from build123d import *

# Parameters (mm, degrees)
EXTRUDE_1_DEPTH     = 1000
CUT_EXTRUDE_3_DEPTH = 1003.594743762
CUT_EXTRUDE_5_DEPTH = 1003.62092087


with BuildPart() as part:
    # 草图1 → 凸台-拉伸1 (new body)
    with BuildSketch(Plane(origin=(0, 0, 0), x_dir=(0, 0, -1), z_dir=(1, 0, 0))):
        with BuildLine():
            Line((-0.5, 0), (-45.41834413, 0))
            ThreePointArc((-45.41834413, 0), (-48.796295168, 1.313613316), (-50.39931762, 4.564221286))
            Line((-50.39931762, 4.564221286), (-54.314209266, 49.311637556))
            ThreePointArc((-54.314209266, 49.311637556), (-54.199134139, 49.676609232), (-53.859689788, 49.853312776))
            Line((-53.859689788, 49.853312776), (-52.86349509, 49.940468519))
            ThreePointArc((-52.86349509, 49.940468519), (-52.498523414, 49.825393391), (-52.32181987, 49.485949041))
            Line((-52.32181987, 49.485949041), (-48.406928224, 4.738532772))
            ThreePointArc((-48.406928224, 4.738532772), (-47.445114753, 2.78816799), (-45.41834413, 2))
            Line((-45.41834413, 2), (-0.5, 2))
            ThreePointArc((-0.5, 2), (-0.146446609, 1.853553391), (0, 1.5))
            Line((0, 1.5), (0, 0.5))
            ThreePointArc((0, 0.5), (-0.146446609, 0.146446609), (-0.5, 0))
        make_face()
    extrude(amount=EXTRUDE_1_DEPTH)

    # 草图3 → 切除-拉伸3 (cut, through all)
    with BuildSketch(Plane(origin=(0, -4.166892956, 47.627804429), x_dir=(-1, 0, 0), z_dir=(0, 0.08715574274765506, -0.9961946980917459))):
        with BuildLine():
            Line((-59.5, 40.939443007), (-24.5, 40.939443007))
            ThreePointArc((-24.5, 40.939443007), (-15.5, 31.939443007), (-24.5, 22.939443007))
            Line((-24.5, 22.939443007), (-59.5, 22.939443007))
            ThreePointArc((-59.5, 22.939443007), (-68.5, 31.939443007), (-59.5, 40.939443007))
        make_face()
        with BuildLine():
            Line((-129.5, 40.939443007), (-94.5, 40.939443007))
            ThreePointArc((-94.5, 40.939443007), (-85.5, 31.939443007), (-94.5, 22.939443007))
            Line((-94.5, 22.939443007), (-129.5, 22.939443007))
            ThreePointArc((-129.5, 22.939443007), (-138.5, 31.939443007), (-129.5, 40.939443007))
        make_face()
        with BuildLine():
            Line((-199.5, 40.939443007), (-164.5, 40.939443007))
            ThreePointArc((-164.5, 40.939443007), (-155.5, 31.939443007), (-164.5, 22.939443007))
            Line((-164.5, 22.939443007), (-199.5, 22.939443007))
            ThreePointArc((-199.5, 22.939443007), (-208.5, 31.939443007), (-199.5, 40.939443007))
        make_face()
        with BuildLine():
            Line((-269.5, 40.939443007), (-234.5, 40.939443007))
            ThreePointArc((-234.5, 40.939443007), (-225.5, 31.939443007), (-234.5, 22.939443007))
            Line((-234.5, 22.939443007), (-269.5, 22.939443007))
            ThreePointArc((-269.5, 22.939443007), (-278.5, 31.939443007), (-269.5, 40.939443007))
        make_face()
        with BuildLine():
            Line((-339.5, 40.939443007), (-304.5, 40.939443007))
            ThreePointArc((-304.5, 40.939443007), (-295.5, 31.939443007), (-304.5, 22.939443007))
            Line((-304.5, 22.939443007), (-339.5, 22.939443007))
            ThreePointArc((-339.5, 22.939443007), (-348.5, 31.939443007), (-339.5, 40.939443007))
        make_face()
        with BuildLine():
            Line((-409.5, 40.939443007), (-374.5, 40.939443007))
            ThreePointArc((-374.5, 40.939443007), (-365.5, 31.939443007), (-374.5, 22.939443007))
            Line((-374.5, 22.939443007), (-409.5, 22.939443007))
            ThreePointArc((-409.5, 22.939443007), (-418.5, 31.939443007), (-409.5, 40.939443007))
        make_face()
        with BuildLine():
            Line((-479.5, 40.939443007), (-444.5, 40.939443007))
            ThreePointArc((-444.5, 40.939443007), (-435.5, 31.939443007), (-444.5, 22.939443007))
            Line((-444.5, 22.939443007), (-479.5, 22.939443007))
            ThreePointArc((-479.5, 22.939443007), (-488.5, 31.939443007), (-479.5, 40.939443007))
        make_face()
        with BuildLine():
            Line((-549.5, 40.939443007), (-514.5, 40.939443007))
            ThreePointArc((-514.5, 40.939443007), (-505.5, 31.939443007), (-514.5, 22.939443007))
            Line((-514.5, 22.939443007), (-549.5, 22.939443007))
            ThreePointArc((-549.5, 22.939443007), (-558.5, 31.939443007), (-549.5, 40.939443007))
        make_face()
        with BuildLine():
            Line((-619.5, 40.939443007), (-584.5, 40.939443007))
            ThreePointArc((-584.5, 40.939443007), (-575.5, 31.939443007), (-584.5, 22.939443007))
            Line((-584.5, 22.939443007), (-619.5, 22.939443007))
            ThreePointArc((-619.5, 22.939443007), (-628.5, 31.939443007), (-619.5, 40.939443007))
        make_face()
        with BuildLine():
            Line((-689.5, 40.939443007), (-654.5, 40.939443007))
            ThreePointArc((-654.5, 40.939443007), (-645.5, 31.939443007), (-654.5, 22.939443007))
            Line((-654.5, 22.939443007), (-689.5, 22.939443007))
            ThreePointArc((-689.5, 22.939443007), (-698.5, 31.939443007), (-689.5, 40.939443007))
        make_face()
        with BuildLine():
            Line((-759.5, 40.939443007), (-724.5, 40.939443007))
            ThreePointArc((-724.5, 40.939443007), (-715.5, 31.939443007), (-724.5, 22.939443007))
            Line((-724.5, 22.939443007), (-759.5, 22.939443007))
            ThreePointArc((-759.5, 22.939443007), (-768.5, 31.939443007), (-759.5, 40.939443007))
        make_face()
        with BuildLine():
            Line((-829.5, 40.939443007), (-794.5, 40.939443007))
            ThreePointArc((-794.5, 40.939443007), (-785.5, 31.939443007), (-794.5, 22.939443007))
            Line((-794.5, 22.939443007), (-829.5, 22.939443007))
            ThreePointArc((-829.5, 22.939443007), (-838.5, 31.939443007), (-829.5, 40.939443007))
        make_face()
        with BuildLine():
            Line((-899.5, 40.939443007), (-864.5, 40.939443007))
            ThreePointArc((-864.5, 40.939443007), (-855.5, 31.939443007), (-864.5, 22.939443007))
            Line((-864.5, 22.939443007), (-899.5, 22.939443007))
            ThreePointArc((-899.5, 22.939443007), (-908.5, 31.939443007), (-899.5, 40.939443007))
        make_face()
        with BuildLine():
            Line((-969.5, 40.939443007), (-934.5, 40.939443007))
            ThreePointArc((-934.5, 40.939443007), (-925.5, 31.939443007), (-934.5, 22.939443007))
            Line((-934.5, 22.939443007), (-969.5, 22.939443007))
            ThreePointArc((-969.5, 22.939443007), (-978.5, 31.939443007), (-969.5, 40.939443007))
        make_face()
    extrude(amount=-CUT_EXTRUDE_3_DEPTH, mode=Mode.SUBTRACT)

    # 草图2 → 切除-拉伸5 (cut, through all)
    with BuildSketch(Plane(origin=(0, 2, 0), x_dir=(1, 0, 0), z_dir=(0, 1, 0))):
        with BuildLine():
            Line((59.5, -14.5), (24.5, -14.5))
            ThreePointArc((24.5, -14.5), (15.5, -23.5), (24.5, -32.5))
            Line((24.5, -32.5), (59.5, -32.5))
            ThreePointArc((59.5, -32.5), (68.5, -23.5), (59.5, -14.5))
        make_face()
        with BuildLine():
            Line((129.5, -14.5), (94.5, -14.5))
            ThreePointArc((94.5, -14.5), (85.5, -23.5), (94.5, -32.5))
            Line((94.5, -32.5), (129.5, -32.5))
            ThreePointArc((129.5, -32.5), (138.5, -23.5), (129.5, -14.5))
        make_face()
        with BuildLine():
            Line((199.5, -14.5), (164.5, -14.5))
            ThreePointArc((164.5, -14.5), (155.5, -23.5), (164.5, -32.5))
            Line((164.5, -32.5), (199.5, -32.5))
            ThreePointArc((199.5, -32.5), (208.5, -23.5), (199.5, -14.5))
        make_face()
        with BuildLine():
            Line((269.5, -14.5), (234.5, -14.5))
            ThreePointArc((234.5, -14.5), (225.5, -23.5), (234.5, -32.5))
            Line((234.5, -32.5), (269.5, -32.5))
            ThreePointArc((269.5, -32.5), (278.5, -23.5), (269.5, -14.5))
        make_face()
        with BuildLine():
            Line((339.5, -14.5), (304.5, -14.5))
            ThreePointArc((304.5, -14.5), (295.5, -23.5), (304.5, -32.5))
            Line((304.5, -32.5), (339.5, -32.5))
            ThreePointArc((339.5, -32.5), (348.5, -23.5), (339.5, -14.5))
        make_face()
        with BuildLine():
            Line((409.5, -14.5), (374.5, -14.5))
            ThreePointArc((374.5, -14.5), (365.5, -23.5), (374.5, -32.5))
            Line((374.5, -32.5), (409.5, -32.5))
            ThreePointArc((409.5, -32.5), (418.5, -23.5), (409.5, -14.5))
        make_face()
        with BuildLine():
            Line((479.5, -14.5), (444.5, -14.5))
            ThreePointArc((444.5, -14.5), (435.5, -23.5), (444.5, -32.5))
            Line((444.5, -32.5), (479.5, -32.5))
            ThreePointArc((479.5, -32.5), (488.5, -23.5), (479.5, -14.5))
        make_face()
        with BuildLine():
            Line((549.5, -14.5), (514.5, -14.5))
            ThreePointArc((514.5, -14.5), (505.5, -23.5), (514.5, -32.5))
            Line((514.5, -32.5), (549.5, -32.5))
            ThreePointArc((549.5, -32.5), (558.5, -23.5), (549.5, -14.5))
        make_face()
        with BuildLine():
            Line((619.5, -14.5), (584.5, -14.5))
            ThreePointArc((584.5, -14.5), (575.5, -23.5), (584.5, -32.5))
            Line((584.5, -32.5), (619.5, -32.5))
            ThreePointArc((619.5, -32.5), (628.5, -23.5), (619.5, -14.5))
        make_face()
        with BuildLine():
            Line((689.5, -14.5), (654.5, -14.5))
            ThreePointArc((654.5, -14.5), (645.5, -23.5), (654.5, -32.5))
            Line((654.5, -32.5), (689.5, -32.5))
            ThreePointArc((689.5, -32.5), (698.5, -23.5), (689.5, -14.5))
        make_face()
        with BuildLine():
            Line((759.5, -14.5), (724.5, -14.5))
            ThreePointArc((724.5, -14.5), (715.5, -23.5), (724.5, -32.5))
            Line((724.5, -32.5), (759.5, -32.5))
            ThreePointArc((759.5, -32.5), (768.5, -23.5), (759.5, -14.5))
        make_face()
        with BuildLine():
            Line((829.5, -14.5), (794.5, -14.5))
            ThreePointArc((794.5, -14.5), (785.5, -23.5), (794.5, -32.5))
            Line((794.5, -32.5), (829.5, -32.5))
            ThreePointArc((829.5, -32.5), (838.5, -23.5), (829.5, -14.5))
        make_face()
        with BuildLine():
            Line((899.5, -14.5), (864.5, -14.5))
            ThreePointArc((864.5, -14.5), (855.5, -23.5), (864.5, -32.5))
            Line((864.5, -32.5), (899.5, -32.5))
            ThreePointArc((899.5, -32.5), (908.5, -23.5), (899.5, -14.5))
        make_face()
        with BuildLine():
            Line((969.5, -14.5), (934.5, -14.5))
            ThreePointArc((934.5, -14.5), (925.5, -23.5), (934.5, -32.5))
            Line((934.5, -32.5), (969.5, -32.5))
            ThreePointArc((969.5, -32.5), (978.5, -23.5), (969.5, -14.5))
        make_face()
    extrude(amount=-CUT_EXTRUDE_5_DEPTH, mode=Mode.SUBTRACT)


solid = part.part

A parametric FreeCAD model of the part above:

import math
import FreeCAD as App
import Part
import Sketcher

V = App.Vector
Q = App.Units.Quantity

doc = App.newDocument("Part")
body = doc.addObject("PartDesign::Body", "Body")

sketch1 = body.newObject("Sketcher::SketchObject", "Sketch")
sketch1.AttachmentSupport = (doc.getObject("YZ_Plane"), [""])
sketch1.MapMode = "FlatFace"
sketch1.addGeometry(Part.LineSegment(V(0, 45.42, 0), V(0, 0.5, 0)), False)
sketch1.addGeometry(Part.ArcOfCircle(Part.Circle(V(0.5, 0.5, 0), V(0, 0, 1), 0.5), math.radians(180), math.radians(270)), False)
sketch1.addGeometry(Part.LineSegment(V(0.5, 0, 0), V(1.5, 0, 0)), False)
sketch1.addGeometry(Part.ArcOfCircle(Part.Circle(V(1.5, 0.5, 0), V(0, 0, 1), 0.5), math.radians(-90), math.radians(0)), False)
sketch1.addGeometry(Part.LineSegment(V(2, 0.5, 0), V(2, 45.42, 0)), False)
sketch1.addGeometry(Part.ArcOfCircle(Part.Circle(V(5, 45.42, 0), V(0, 0, 1), 3), math.radians(95), math.radians(180)), False)
sketch1.addGeometry(Part.LineSegment(V(4.74, 48.41, 0), V(49.49, 52.32, 0)), False)
sketch1.addGeometry(Part.ArcOfCircle(Part.Circle(V(49.44, 52.82, 0), V(0, 0, 1), 0.5), math.radians(-85), math.radians(5)), False)
sketch1.addGeometry(Part.LineSegment(V(49.94, 52.86, 0), V(49.85, 53.86, 0)), False)
sketch1.addGeometry(Part.ArcOfCircle(Part.Circle(V(49.36, 53.82, 0), V(0, 0, 1), 0.5), math.radians(5), math.radians(95)), False)
sketch1.addGeometry(Part.LineSegment(V(49.31, 54.31, 0), V(4.56, 50.4, 0)), False)
sketch1.addGeometry(Part.ArcOfCircle(Part.Circle(V(5, 45.42, 0), V(0, 0, 1), 5), math.radians(95), math.radians(180)), False)
sketch1.addConstraint(Sketcher.Constraint("Tangent", 0, 2, 1, 1))
sketch1.addConstraint(Sketcher.Constraint("Tangent", 1, 2, 2, 1))
sketch1.addConstraint(Sketcher.Constraint("Tangent", 2, 2, 3, 1))
sketch1.addConstraint(Sketcher.Constraint("Tangent", 3, 2, 4, 1))
sketch1.addConstraint(Sketcher.Constraint("Tangent", 4, 2, 5, 2))
sketch1.addConstraint(Sketcher.Constraint("Tangent", 5, 1, 6, 1))
sketch1.addConstraint(Sketcher.Constraint("Tangent", 6, 2, 7, 1))
sketch1.addConstraint(Sketcher.Constraint("Tangent", 7, 2, 8, 1))
sketch1.addConstraint(Sketcher.Constraint("Tangent", 8, 2, 9, 1))
sketch1.addConstraint(Sketcher.Constraint("Tangent", 9, 2, 10, 1))
sketch1.addConstraint(Sketcher.Constraint("Tangent", 10, 2, 11, 1))
sketch1.addConstraint(Sketcher.Constraint("Tangent", 11, 2, 0, 1))
sketch1.addConstraint(Sketcher.Constraint("Vertical", 0))
sketch1.addConstraint(Sketcher.Constraint("Horizontal", 2))
sketch1.addConstraint(Sketcher.Constraint("Vertical", 4))
sketch1.addConstraint(Sketcher.Constraint("Coincident", 11, 3, 5, 3))
sketch1.addConstraint(Sketcher.Constraint("Equal", 1, 3))
sketch1.addConstraint(Sketcher.Constraint("Equal", 3, 7))
sketch1.addConstraint(Sketcher.Constraint("Equal", 7, 9))
sketch1.addConstraint(Sketcher.Constraint("PointOnObject", 0, 2, -2))
sketch1.addConstraint(Sketcher.Constraint("PointOnObject", 1, 2, -1))
sketch1.addConstraint(Sketcher.Constraint("Perpendicular", 6, 8))
sketch1.addConstraint(Sketcher.Constraint("Perpendicular", 8, 10))
sketch1.addConstraint(Sketcher.Constraint("Radius", 5, 3.0))
sketch1.addConstraint(Sketcher.Constraint("Radius", 11, 5.0))
sketch1.addConstraint(Sketcher.Constraint("Radius", 1, 0.5))
sketch1.addConstraint(Sketcher.Constraint("Angle", 6, Q("5 deg")))
sketch1.addConstraint(Sketcher.Constraint("DistanceY", 0, 2, 0, 1, 44.918344))
sketch1.addConstraint(Sketcher.Constraint("DistanceX", -1, 1, 7, 3, 49.442371))
pad1 = body.newObject("PartDesign::Pad", "Pad")
pad1.Profile = sketch1
pad1.Length = 1000

sketch2 = body.newObject("Sketcher::SketchObject", "Sketch001")
sketch2.Placement = App.Placement(V(0, -4.166893, 47.627804), App.Rotation(V(-1, 0, 0), V(0, 0.996194698, 0.087155743), V(0, 0.087155743, -0.996194698), "ZXY"))
sketch2.addGeometry(Part.LineSegment(V(-24, 41, 0), V(-60, 41, 0)), False)
sketch2.addGeometry(Part.ArcOfCircle(Part.Circle(V(-60, 32, 0), V(0, 0, 1), 9), math.radians(90), math.radians(270)), False)
sketch2.addGeometry(Part.LineSegment(V(-60, 23, 0), V(-24, 23, 0)), False)
sketch2.addGeometry(Part.ArcOfCircle(Part.Circle(V(-24, 32, 0), V(0, 0, 1), 9), math.radians(-90), math.radians(90)), False)
sketch2.addGeometry(Part.LineSegment(V(-94, 41, 0), V(-130, 41, 0)), False)
sketch2.addGeometry(Part.ArcOfCircle(Part.Circle(V(-130, 32, 0), V(0, 0, 1), 9), math.radians(90), math.radians(270)), False)
sketch2.addGeometry(Part.LineSegment(V(-130, 23, 0), V(-94, 23, 0)), False)
sketch2.addGeometry(Part.ArcOfCircle(Part.Circle(V(-94, 32, 0), V(0, 0, 1), 9), math.radians(-90), math.radians(90)), False)
sketch2.addGeometry(Part.LineSegment(V(-164, 41, 0), V(-200, 41, 0)), False)
sketch2.addGeometry(Part.ArcOfCircle(Part.Circle(V(-200, 32, 0), V(0, 0, 1), 9), math.radians(90), math.radians(270)), False)
sketch2.addGeometry(Part.LineSegment(V(-200, 23, 0), V(-164, 23, 0)), False)
sketch2.addGeometry(Part.ArcOfCircle(Part.Circle(V(-164, 32, 0), V(0, 0, 1), 9), math.radians(-90), math.radians(90)), False)
sketch2.addGeometry(Part.LineSegment(V(-234, 41, 0), V(-270, 41, 0)), False)
sketch2.addGeometry(Part.ArcOfCircle(Part.Circle(V(-270, 32, 0), V(0, 0, 1), 9), math.radians(90), math.radians(270)), False)
sketch2.addGeometry(Part.LineSegment(V(-270, 23, 0), V(-234, 23, 0)), False)
sketch2.addGeometry(Part.ArcOfCircle(Part.Circle(V(-234, 32, 0), V(0, 0, 1), 9), math.radians(-90), math.radians(90)), False)
sketch2.addGeometry(Part.LineSegment(V(-304, 41, 0), V(-340, 41, 0)), False)
sketch2.addGeometry(Part.ArcOfCircle(Part.Circle(V(-340, 32, 0), V(0, 0, 1), 9), math.radians(90), math.radians(270)), False)
sketch2.addGeometry(Part.LineSegment(V(-340, 23, 0), V(-304, 23, 0)), False)
sketch2.addGeometry(Part.ArcOfCircle(Part.Circle(V(-304, 32, 0), V(0, 0, 1), 9), math.radians(-90), math.radians(90)), False)
sketch2.addGeometry(Part.LineSegment(V(-374, 41, 0), V(-410, 41, 0)), False)
sketch2.addGeometry(Part.ArcOfCircle(Part.Circle(V(-410, 32, 0), V(0, 0, 1), 9), math.radians(90), math.radians(270)), False)
sketch2.addGeometry(Part.LineSegment(V(-410, 23, 0), V(-374, 23, 0)), False)
sketch2.addGeometry(Part.ArcOfCircle(Part.Circle(V(-374, 32, 0), V(0, 0, 1), 9), math.radians(-90), math.radians(90)), False)
sketch2.addGeometry(Part.LineSegment(V(-444, 41, 0), V(-480, 41, 0)), False)
sketch2.addGeometry(Part.ArcOfCircle(Part.Circle(V(-480, 32, 0), V(0, 0, 1), 9), math.radians(90), math.radians(270)), False)
sketch2.addGeometry(Part.LineSegment(V(-480, 23, 0), V(-444, 23, 0)), False)
sketch2.addGeometry(Part.ArcOfCircle(Part.Circle(V(-444, 32, 0), V(0, 0, 1), 9), math.radians(-90), math.radians(90)), False)
sketch2.addGeometry(Part.LineSegment(V(-514, 41, 0), V(-550, 41, 0)), False)
sketch2.addGeometry(Part.ArcOfCircle(Part.Circle(V(-550, 32, 0), V(0, 0, 1), 9), math.radians(90), math.radians(270)), False)
sketch2.addGeometry(Part.LineSegment(V(-550, 23, 0), V(-514, 23, 0)), False)
sketch2.addGeometry(Part.ArcOfCircle(Part.Circle(V(-514, 32, 0), V(0, 0, 1), 9), math.radians(-90), math.radians(90)), False)
sketch2.addGeometry(Part.LineSegment(V(-584, 41, 0), V(-620, 41, 0)), False)
sketch2.addGeometry(Part.ArcOfCircle(Part.Circle(V(-620, 32, 0), V(0, 0, 1), 9), math.radians(90), math.radians(270)), False)
sketch2.addGeometry(Part.LineSegment(V(-620, 23, 0), V(-584, 23, 0)), False)
sketch2.addGeometry(Part.ArcOfCircle(Part.Circle(V(-584, 32, 0), V(0, 0, 1), 9), math.radians(-90), math.radians(90)), False)
sketch2.addGeometry(Part.LineSegment(V(-654, 41, 0), V(-690, 41, 0)), False)
sketch2.addGeometry(Part.ArcOfCircle(Part.Circle(V(-690, 32, 0), V(0, 0, 1), 9), math.radians(90), math.radians(270)), False)
sketch2.addGeometry(Part.LineSegment(V(-690, 23, 0), V(-654, 23, 0)), False)
sketch2.addGeometry(Part.ArcOfCircle(Part.Circle(V(-654, 32, 0), V(0, 0, 1), 9), math.radians(-90), math.radians(90)), False)
sketch2.addGeometry(Part.LineSegment(V(-724, 41, 0), V(-760, 41, 0)), False)
sketch2.addGeometry(Part.ArcOfCircle(Part.Circle(V(-760, 32, 0), V(0, 0, 1), 9), math.radians(90), math.radians(270)), False)
sketch2.addGeometry(Part.LineSegment(V(-760, 23, 0), V(-724, 23, 0)), False)
sketch2.addGeometry(Part.ArcOfCircle(Part.Circle(V(-724, 32, 0), V(0, 0, 1), 9), math.radians(-90), math.radians(90)), False)
sketch2.addGeometry(Part.LineSegment(V(-794, 41, 0), V(-830, 41, 0)), False)
sketch2.addGeometry(Part.ArcOfCircle(Part.Circle(V(-830, 32, 0), V(0, 0, 1), 9), math.radians(90), math.radians(270)), False)
sketch2.addGeometry(Part.LineSegment(V(-830, 23, 0), V(-794, 23, 0)), False)
sketch2.addGeometry(Part.ArcOfCircle(Part.Circle(V(-794, 32, 0), V(0, 0, 1), 9), math.radians(-90), math.radians(90)), False)
sketch2.addGeometry(Part.LineSegment(V(-864, 41, 0), V(-900, 41, 0)), False)
sketch2.addGeometry(Part.ArcOfCircle(Part.Circle(V(-900, 32, 0), V(0, 0, 1), 9), math.radians(90), math.radians(270)), False)
sketch2.addGeometry(Part.LineSegment(V(-900, 23, 0), V(-864, 23, 0)), False)
sketch2.addGeometry(Part.ArcOfCircle(Part.Circle(V(-864, 32, 0), V(0, 0, 1), 9), math.radians(-90), math.radians(90)), False)
sketch2.addGeometry(Part.LineSegment(V(-934, 41, 0), V(-970, 41, 0)), False)
sketch2.addGeometry(Part.ArcOfCircle(Part.Circle(V(-970, 32, 0), V(0, 0, 1), 9), math.radians(90), math.radians(270)), False)
sketch2.addGeometry(Part.LineSegment(V(-970, 23, 0), V(-934, 23, 0)), False)
sketch2.addGeometry(Part.ArcOfCircle(Part.Circle(V(-934, 32, 0), V(0, 0, 1), 9), math.radians(-90), math.radians(90)), False)
sketch2.addConstraint(Sketcher.Constraint("Tangent", 0, 2, 1, 1))
sketch2.addConstraint(Sketcher.Constraint("Tangent", 1, 2, 2, 1))
sketch2.addConstraint(Sketcher.Constraint("Tangent", 2, 2, 3, 1))
sketch2.addConstraint(Sketcher.Constraint("Tangent", 3, 2, 0, 1))
sketch2.addConstraint(Sketcher.Constraint("Tangent", 4, 2, 5, 1))
sketch2.addConstraint(Sketcher.Constraint("Tangent", 5, 2, 6, 1))
sketch2.addConstraint(Sketcher.Constraint("Tangent", 6, 2, 7, 1))
sketch2.addConstraint(Sketcher.Constraint("Tangent", 7, 2, 4, 1))
sketch2.addConstraint(Sketcher.Constraint("Tangent", 8, 2, 9, 1))
sketch2.addConstraint(Sketcher.Constraint("Tangent", 9, 2, 10, 1))
sketch2.addConstraint(Sketcher.Constraint("Tangent", 10, 2, 11, 1))
sketch2.addConstraint(Sketcher.Constraint("Tangent", 11, 2, 8, 1))
sketch2.addConstraint(Sketcher.Constraint("Tangent", 12, 2, 13, 1))
sketch2.addConstraint(Sketcher.Constraint("Tangent", 13, 2, 14, 1))
sketch2.addConstraint(Sketcher.Constraint("Tangent", 14, 2, 15, 1))
sketch2.addConstraint(Sketcher.Constraint("Tangent", 15, 2, 12, 1))
sketch2.addConstraint(Sketcher.Constraint("Tangent", 16, 2, 17, 1))
sketch2.addConstraint(Sketcher.Constraint("Tangent", 17, 2, 18, 1))
sketch2.addConstraint(Sketcher.Constraint("Tangent", 18, 2, 19, 1))
sketch2.addConstraint(Sketcher.Constraint("Tangent", 19, 2, 16, 1))
sketch2.addConstraint(Sketcher.Constraint("Tangent", 20, 2, 21, 1))
sketch2.addConstraint(Sketcher.Constraint("Tangent", 21, 2, 22, 1))
sketch2.addConstraint(Sketcher.Constraint("Tangent", 22, 2, 23, 1))
sketch2.addConstraint(Sketcher.Constraint("Tangent", 23, 2, 20, 1))
sketch2.addConstraint(Sketcher.Constraint("Tangent", 24, 2, 25, 1))
sketch2.addConstraint(Sketcher.Constraint("Tangent", 25, 2, 26, 1))
sketch2.addConstraint(Sketcher.Constraint("Tangent", 26, 2, 27, 1))
sketch2.addConstraint(Sketcher.Constraint("Tangent", 27, 2, 24, 1))
sketch2.addConstraint(Sketcher.Constraint("Tangent", 28, 2, 29, 1))
sketch2.addConstraint(Sketcher.Constraint("Tangent", 29, 2, 30, 1))
sketch2.addConstraint(Sketcher.Constraint("Tangent", 30, 2, 31, 1))
sketch2.addConstraint(Sketcher.Constraint("Tangent", 31, 2, 28, 1))
sketch2.addConstraint(Sketcher.Constraint("Tangent", 32, 2, 33, 1))
sketch2.addConstraint(Sketcher.Constraint("Tangent", 33, 2, 34, 1))
sketch2.addConstraint(Sketcher.Constraint("Tangent", 34, 2, 35, 1))
sketch2.addConstraint(Sketcher.Constraint("Tangent", 35, 2, 32, 1))
sketch2.addConstraint(Sketcher.Constraint("Tangent", 36, 2, 37, 1))
sketch2.addConstraint(Sketcher.Constraint("Tangent", 37, 2, 38, 1))
sketch2.addConstraint(Sketcher.Constraint("Tangent", 38, 2, 39, 1))
sketch2.addConstraint(Sketcher.Constraint("Tangent", 39, 2, 36, 1))
sketch2.addConstraint(Sketcher.Constraint("Tangent", 40, 2, 41, 1))
sketch2.addConstraint(Sketcher.Constraint("Tangent", 41, 2, 42, 1))
sketch2.addConstraint(Sketcher.Constraint("Tangent", 42, 2, 43, 1))
sketch2.addConstraint(Sketcher.Constraint("Tangent", 43, 2, 40, 1))
sketch2.addConstraint(Sketcher.Constraint("Tangent", 44, 2, 45, 1))
sketch2.addConstraint(Sketcher.Constraint("Tangent", 45, 2, 46, 1))
sketch2.addConstraint(Sketcher.Constraint("Tangent", 46, 2, 47, 1))
sketch2.addConstraint(Sketcher.Constraint("Tangent", 47, 2, 44, 1))
sketch2.addConstraint(Sketcher.Constraint("Tangent", 48, 2, 49, 1))
sketch2.addConstraint(Sketcher.Constraint("Tangent", 49, 2, 50, 1))
sketch2.addConstraint(Sketcher.Constraint("Tangent", 50, 2, 51, 1))
sketch2.addConstraint(Sketcher.Constraint("Tangent", 51, 2, 48, 1))
sketch2.addConstraint(Sketcher.Constraint("Tangent", 52, 2, 53, 1))
sketch2.addConstraint(Sketcher.Constraint("Tangent", 53, 2, 54, 1))
sketch2.addConstraint(Sketcher.Constraint("Tangent", 54, 2, 55, 1))
sketch2.addConstraint(Sketcher.Constraint("Tangent", 55, 2, 52, 1))
sketch2.addConstraint(Sketcher.Constraint("Horizontal", 0))
sketch2.addConstraint(Sketcher.Constraint("Horizontal", 2))
sketch2.addConstraint(Sketcher.Constraint("Horizontal", 4))
sketch2.addConstraint(Sketcher.Constraint("Horizontal", 6))
sketch2.addConstraint(Sketcher.Constraint("Horizontal", 8))
sketch2.addConstraint(Sketcher.Constraint("Horizontal", 10))
sketch2.addConstraint(Sketcher.Constraint("Horizontal", 12))
sketch2.addConstraint(Sketcher.Constraint("Horizontal", 14))
sketch2.addConstraint(Sketcher.Constraint("Horizontal", 16))
sketch2.addConstraint(Sketcher.Constraint("Horizontal", 18))
sketch2.addConstraint(Sketcher.Constraint("Horizontal", 20))
sketch2.addConstraint(Sketcher.Constraint("Horizontal", 22))
sketch2.addConstraint(Sketcher.Constraint("Horizontal", 24))
sketch2.addConstraint(Sketcher.Constraint("Horizontal", 26))
sketch2.addConstraint(Sketcher.Constraint("Horizontal", 28))
sketch2.addConstraint(Sketcher.Constraint("Horizontal", 30))
sketch2.addConstraint(Sketcher.Constraint("Horizontal", 32))
sketch2.addConstraint(Sketcher.Constraint("Horizontal", 34))
sketch2.addConstraint(Sketcher.Constraint("Horizontal", 36))
sketch2.addConstraint(Sketcher.Constraint("Horizontal", 38))
sketch2.addConstraint(Sketcher.Constraint("Horizontal", 40))
sketch2.addConstraint(Sketcher.Constraint("Horizontal", 42))
sketch2.addConstraint(Sketcher.Constraint("Horizontal", 44))
sketch2.addConstraint(Sketcher.Constraint("Horizontal", 46))
sketch2.addConstraint(Sketcher.Constraint("Horizontal", 48))
sketch2.addConstraint(Sketcher.Constraint("Horizontal", 50))
sketch2.addConstraint(Sketcher.Constraint("Horizontal", 52))
sketch2.addConstraint(Sketcher.Constraint("Horizontal", 54))
sketch2.addConstraint(Sketcher.Constraint("Equal", 3, 5))
sketch2.addConstraint(Sketcher.Constraint("Equal", 7, 9))
sketch2.addConstraint(Sketcher.Constraint("Equal", 11, 13))
sketch2.addConstraint(Sketcher.Constraint("Equal", 15, 17))
sketch2.addConstraint(Sketcher.Constraint("Equal", 19, 21))
sketch2.addConstraint(Sketcher.Constraint("Equal", 23, 25))
sketch2.addConstraint(Sketcher.Constraint("Equal", 27, 29))
sketch2.addConstraint(Sketcher.Constraint("Equal", 31, 33))
sketch2.addConstraint(Sketcher.Constraint("Equal", 35, 37))
sketch2.addConstraint(Sketcher.Constraint("Equal", 39, 41))
sketch2.addConstraint(Sketcher.Constraint("Equal", 43, 45))
sketch2.addConstraint(Sketcher.Constraint("Equal", 47, 49))
sketch2.addConstraint(Sketcher.Constraint("Equal", 51, 53))
sketch2.addConstraint(Sketcher.Constraint("Horizontal", 3, 3, 5, 3))
sketch2.addConstraint(Sketcher.Constraint("Horizontal", 7, 3, 9, 3))
sketch2.addConstraint(Sketcher.Constraint("Horizontal", 11, 3, 13, 3))
sketch2.addConstraint(Sketcher.Constraint("Horizontal", 15, 3, 17, 3))
sketch2.addConstraint(Sketcher.Constraint("Horizontal", 19, 3, 21, 3))
sketch2.addConstraint(Sketcher.Constraint("Horizontal", 23, 3, 25, 3))
sketch2.addConstraint(Sketcher.Constraint("Horizontal", 27, 3, 29, 3))
sketch2.addConstraint(Sketcher.Constraint("Horizontal", 31, 3, 33, 3))
sketch2.addConstraint(Sketcher.Constraint("Horizontal", 35, 3, 37, 3))
sketch2.addConstraint(Sketcher.Constraint("Horizontal", 39, 3, 41, 3))
sketch2.addConstraint(Sketcher.Constraint("Horizontal", 43, 3, 45, 3))
sketch2.addConstraint(Sketcher.Constraint("Horizontal", 47, 3, 49, 3))
sketch2.addConstraint(Sketcher.Constraint("Horizontal", 51, 3, 53, 3))
sketch2.addConstraint(Sketcher.Constraint("Equal", 2, 4))
sketch2.addConstraint(Sketcher.Constraint("Equal", 6, 8))
sketch2.addConstraint(Sketcher.Constraint("Equal", 10, 12))
sketch2.addConstraint(Sketcher.Constraint("Equal", 14, 16))
sketch2.addConstraint(Sketcher.Constraint("Equal", 18, 20))
sketch2.addConstraint(Sketcher.Constraint("Equal", 22, 24))
sketch2.addConstraint(Sketcher.Constraint("Equal", 26, 28))
sketch2.addConstraint(Sketcher.Constraint("Equal", 30, 32))
sketch2.addConstraint(Sketcher.Constraint("Equal", 34, 36))
sketch2.addConstraint(Sketcher.Constraint("Equal", 38, 40))
sketch2.addConstraint(Sketcher.Constraint("Equal", 42, 44))
sketch2.addConstraint(Sketcher.Constraint("Equal", 46, 48))
sketch2.addConstraint(Sketcher.Constraint("Equal", 50, 52))
sketch2.addConstraint(Sketcher.Constraint("Radius", 1, 9.0))
sketch2.addConstraint(Sketcher.Constraint("DistanceX", 0, 2, 0, 1, 35.0))
sketch2.addConstraint(Sketcher.Constraint("DistanceX", 1, 3, -1, 1, 59.5))
sketch2.addConstraint(Sketcher.Constraint("DistanceX", 5, 3, -1, 1, 129.5))
sketch2.addConstraint(Sketcher.Constraint("DistanceX", 9, 3, -1, 1, 199.5))
sketch2.addConstraint(Sketcher.Constraint("DistanceX", 13, 3, -1, 1, 269.5))
sketch2.addConstraint(Sketcher.Constraint("DistanceX", 17, 3, -1, 1, 339.5))
sketch2.addConstraint(Sketcher.Constraint("DistanceX", 21, 3, -1, 1, 409.5))
sketch2.addConstraint(Sketcher.Constraint("DistanceX", 25, 3, -1, 1, 479.5))
sketch2.addConstraint(Sketcher.Constraint("DistanceX", 29, 3, -1, 1, 549.5))
sketch2.addConstraint(Sketcher.Constraint("DistanceX", 33, 3, -1, 1, 619.5))
sketch2.addConstraint(Sketcher.Constraint("DistanceX", 37, 3, -1, 1, 689.5))
sketch2.addConstraint(Sketcher.Constraint("DistanceX", 41, 3, -1, 1, 759.5))
sketch2.addConstraint(Sketcher.Constraint("DistanceX", 45, 3, -1, 1, 829.5))
sketch2.addConstraint(Sketcher.Constraint("DistanceX", 49, 3, -1, 1, 899.5))
sketch2.addConstraint(Sketcher.Constraint("DistanceX", 53, 3, -1, 1, 969.5))
sketch2.addConstraint(Sketcher.Constraint("DistanceY", -1, 1, 1, 3, 31.939443))
pocket1 = body.newObject("PartDesign::Pocket", "Pocket")
pocket1.Profile = sketch2
pocket1.Type = "ThroughAll"

sketch3 = body.newObject("Sketcher::SketchObject", "Sketch002")
sketch3.AttachmentSupport = (doc.getObject("XZ_Plane"), [""])
sketch3.MapMode = "FlatFace"
sketch3.AttachmentOffset = App.Placement(V(0, 0, -2), App.Rotation())
sketch3.addGeometry(Part.LineSegment(V(60, 14, 0), V(24, 14, 0)), False)
sketch3.addGeometry(Part.ArcOfCircle(Part.Circle(V(24, 24, 0), V(0, 0, 1), 9), math.radians(90), math.radians(270)), False)
sketch3.addGeometry(Part.LineSegment(V(24, 32, 0), V(60, 32, 0)), False)
sketch3.addGeometry(Part.ArcOfCircle(Part.Circle(V(60, 24, 0), V(0, 0, 1), 9), math.radians(-90), math.radians(90)), False)
sketch3.addGeometry(Part.LineSegment(V(130, 14, 0), V(94, 14, 0)), False)
sketch3.addGeometry(Part.ArcOfCircle(Part.Circle(V(94, 24, 0), V(0, 0, 1), 9), math.radians(90), math.radians(270)), False)
sketch3.addGeometry(Part.LineSegment(V(94, 32, 0), V(130, 32, 0)), False)
sketch3.addGeometry(Part.ArcOfCircle(Part.Circle(V(130, 24, 0), V(0, 0, 1), 9), math.radians(-90), math.radians(90)), False)
sketch3.addGeometry(Part.LineSegment(V(200, 14, 0), V(164, 14, 0)), False)
sketch3.addGeometry(Part.ArcOfCircle(Part.Circle(V(164, 24, 0), V(0, 0, 1), 9), math.radians(90), math.radians(270)), False)
sketch3.addGeometry(Part.LineSegment(V(164, 32, 0), V(200, 32, 0)), False)
sketch3.addGeometry(Part.ArcOfCircle(Part.Circle(V(200, 24, 0), V(0, 0, 1), 9), math.radians(-90), math.radians(90)), False)
sketch3.addGeometry(Part.LineSegment(V(270, 14, 0), V(234, 14, 0)), False)
sketch3.addGeometry(Part.ArcOfCircle(Part.Circle(V(234, 24, 0), V(0, 0, 1), 9), math.radians(90), math.radians(270)), False)
sketch3.addGeometry(Part.LineSegment(V(234, 32, 0), V(270, 32, 0)), False)
sketch3.addGeometry(Part.ArcOfCircle(Part.Circle(V(270, 24, 0), V(0, 0, 1), 9), math.radians(-90), math.radians(90)), False)
sketch3.addGeometry(Part.LineSegment(V(340, 14, 0), V(304, 14, 0)), False)
sketch3.addGeometry(Part.ArcOfCircle(Part.Circle(V(304, 24, 0), V(0, 0, 1), 9), math.radians(90), math.radians(270)), False)
sketch3.addGeometry(Part.LineSegment(V(304, 32, 0), V(340, 32, 0)), False)
sketch3.addGeometry(Part.ArcOfCircle(Part.Circle(V(340, 24, 0), V(0, 0, 1), 9), math.radians(-90), math.radians(90)), False)
sketch3.addGeometry(Part.LineSegment(V(410, 14, 0), V(374, 14, 0)), False)
sketch3.addGeometry(Part.ArcOfCircle(Part.Circle(V(374, 24, 0), V(0, 0, 1), 9), math.radians(90), math.radians(270)), False)
sketch3.addGeometry(Part.LineSegment(V(374, 32, 0), V(410, 32, 0)), False)
sketch3.addGeometry(Part.ArcOfCircle(Part.Circle(V(410, 24, 0), V(0, 0, 1), 9), math.radians(-90), math.radians(90)), False)
sketch3.addGeometry(Part.LineSegment(V(480, 14, 0), V(444, 14, 0)), False)
sketch3.addGeometry(Part.ArcOfCircle(Part.Circle(V(444, 24, 0), V(0, 0, 1), 9), math.radians(90), math.radians(270)), False)
sketch3.addGeometry(Part.LineSegment(V(444, 32, 0), V(480, 32, 0)), False)
sketch3.addGeometry(Part.ArcOfCircle(Part.Circle(V(480, 24, 0), V(0, 0, 1), 9), math.radians(-90), math.radians(90)), False)
sketch3.addGeometry(Part.LineSegment(V(550, 14, 0), V(514, 14, 0)), False)
sketch3.addGeometry(Part.ArcOfCircle(Part.Circle(V(514, 24, 0), V(0, 0, 1), 9), math.radians(90), math.radians(270)), False)
sketch3.addGeometry(Part.LineSegment(V(514, 32, 0), V(550, 32, 0)), False)
sketch3.addGeometry(Part.ArcOfCircle(Part.Circle(V(550, 24, 0), V(0, 0, 1), 9), math.radians(-90), math.radians(90)), False)
sketch3.addGeometry(Part.LineSegment(V(620, 14, 0), V(584, 14, 0)), False)
sketch3.addGeometry(Part.ArcOfCircle(Part.Circle(V(584, 24, 0), V(0, 0, 1), 9), math.radians(90), math.radians(270)), False)
sketch3.addGeometry(Part.LineSegment(V(584, 32, 0), V(620, 32, 0)), False)
sketch3.addGeometry(Part.ArcOfCircle(Part.Circle(V(620, 24, 0), V(0, 0, 1), 9), math.radians(-90), math.radians(90)), False)
sketch3.addGeometry(Part.LineSegment(V(690, 14, 0), V(654, 14, 0)), False)
sketch3.addGeometry(Part.ArcOfCircle(Part.Circle(V(654, 24, 0), V(0, 0, 1), 9), math.radians(90), math.radians(270)), False)
sketch3.addGeometry(Part.LineSegment(V(654, 32, 0), V(690, 32, 0)), False)
sketch3.addGeometry(Part.ArcOfCircle(Part.Circle(V(690, 24, 0), V(0, 0, 1), 9), math.radians(-90), math.radians(90)), False)
sketch3.addGeometry(Part.LineSegment(V(760, 14, 0), V(724, 14, 0)), False)
sketch3.addGeometry(Part.ArcOfCircle(Part.Circle(V(724, 24, 0), V(0, 0, 1), 9), math.radians(90), math.radians(270)), False)
sketch3.addGeometry(Part.LineSegment(V(724, 32, 0), V(760, 32, 0)), False)
sketch3.addGeometry(Part.ArcOfCircle(Part.Circle(V(760, 24, 0), V(0, 0, 1), 9), math.radians(-90), math.radians(90)), False)
sketch3.addGeometry(Part.LineSegment(V(830, 14, 0), V(794, 14, 0)), False)
sketch3.addGeometry(Part.ArcOfCircle(Part.Circle(V(794, 24, 0), V(0, 0, 1), 9), math.radians(90), math.radians(270)), False)
sketch3.addGeometry(Part.LineSegment(V(794, 32, 0), V(830, 32, 0)), False)
sketch3.addGeometry(Part.ArcOfCircle(Part.Circle(V(830, 24, 0), V(0, 0, 1), 9), math.radians(-90), math.radians(90)), False)
sketch3.addGeometry(Part.LineSegment(V(900, 14, 0), V(864, 14, 0)), False)
sketch3.addGeometry(Part.ArcOfCircle(Part.Circle(V(864, 24, 0), V(0, 0, 1), 9), math.radians(90), math.radians(270)), False)
sketch3.addGeometry(Part.LineSegment(V(864, 32, 0), V(900, 32, 0)), False)
sketch3.addGeometry(Part.ArcOfCircle(Part.Circle(V(900, 24, 0), V(0, 0, 1), 9), math.radians(-90), math.radians(90)), False)
sketch3.addGeometry(Part.LineSegment(V(970, 14, 0), V(934, 14, 0)), False)
sketch3.addGeometry(Part.ArcOfCircle(Part.Circle(V(934, 24, 0), V(0, 0, 1), 9), math.radians(90), math.radians(270)), False)
sketch3.addGeometry(Part.LineSegment(V(934, 32, 0), V(970, 32, 0)), False)
sketch3.addGeometry(Part.ArcOfCircle(Part.Circle(V(970, 24, 0), V(0, 0, 1), 9), math.radians(-90), math.radians(90)), False)
sketch3.addConstraint(Sketcher.Constraint("Tangent", 0, 2, 1, 2))
sketch3.addConstraint(Sketcher.Constraint("Tangent", 1, 1, 2, 1))
sketch3.addConstraint(Sketcher.Constraint("Tangent", 2, 2, 3, 2))
sketch3.addConstraint(Sketcher.Constraint("Tangent", 3, 1, 0, 1))
sketch3.addConstraint(Sketcher.Constraint("Tangent", 4, 2, 5, 2))
sketch3.addConstraint(Sketcher.Constraint("Tangent", 5, 1, 6, 1))
sketch3.addConstraint(Sketcher.Constraint("Tangent", 6, 2, 7, 2))
sketch3.addConstraint(Sketcher.Constraint("Tangent", 7, 1, 4, 1))
sketch3.addConstraint(Sketcher.Constraint("Tangent", 8, 2, 9, 2))
sketch3.addConstraint(Sketcher.Constraint("Tangent", 9, 1, 10, 1))
sketch3.addConstraint(Sketcher.Constraint("Tangent", 10, 2, 11, 2))
sketch3.addConstraint(Sketcher.Constraint("Tangent", 11, 1, 8, 1))
sketch3.addConstraint(Sketcher.Constraint("Tangent", 12, 2, 13, 2))
sketch3.addConstraint(Sketcher.Constraint("Tangent", 13, 1, 14, 1))
sketch3.addConstraint(Sketcher.Constraint("Tangent", 14, 2, 15, 2))
sketch3.addConstraint(Sketcher.Constraint("Tangent", 15, 1, 12, 1))
sketch3.addConstraint(Sketcher.Constraint("Tangent", 16, 2, 17, 2))
sketch3.addConstraint(Sketcher.Constraint("Tangent", 17, 1, 18, 1))
sketch3.addConstraint(Sketcher.Constraint("Tangent", 18, 2, 19, 2))
sketch3.addConstraint(Sketcher.Constraint("Tangent", 19, 1, 16, 1))
sketch3.addConstraint(Sketcher.Constraint("Tangent", 20, 2, 21, 2))
sketch3.addConstraint(Sketcher.Constraint("Tangent", 21, 1, 22, 1))
sketch3.addConstraint(Sketcher.Constraint("Tangent", 22, 2, 23, 2))
sketch3.addConstraint(Sketcher.Constraint("Tangent", 23, 1, 20, 1))
sketch3.addConstraint(Sketcher.Constraint("Tangent", 24, 2, 25, 2))
sketch3.addConstraint(Sketcher.Constraint("Tangent", 25, 1, 26, 1))
sketch3.addConstraint(Sketcher.Constraint("Tangent", 26, 2, 27, 2))
sketch3.addConstraint(Sketcher.Constraint("Tangent", 27, 1, 24, 1))
sketch3.addConstraint(Sketcher.Constraint("Tangent", 28, 2, 29, 2))
sketch3.addConstraint(Sketcher.Constraint("Tangent", 29, 1, 30, 1))
sketch3.addConstraint(Sketcher.Constraint("Tangent", 30, 2, 31, 2))
sketch3.addConstraint(Sketcher.Constraint("Tangent", 31, 1, 28, 1))
sketch3.addConstraint(Sketcher.Constraint("Tangent", 32, 2, 33, 2))
sketch3.addConstraint(Sketcher.Constraint("Tangent", 33, 1, 34, 1))
sketch3.addConstraint(Sketcher.Constraint("Tangent", 34, 2, 35, 2))
sketch3.addConstraint(Sketcher.Constraint("Tangent", 35, 1, 32, 1))
sketch3.addConstraint(Sketcher.Constraint("Tangent", 36, 2, 37, 2))
sketch3.addConstraint(Sketcher.Constraint("Tangent", 37, 1, 38, 1))
sketch3.addConstraint(Sketcher.Constraint("Tangent", 38, 2, 39, 2))
sketch3.addConstraint(Sketcher.Constraint("Tangent", 39, 1, 36, 1))
sketch3.addConstraint(Sketcher.Constraint("Tangent", 40, 2, 41, 2))
sketch3.addConstraint(Sketcher.Constraint("Tangent", 41, 1, 42, 1))
sketch3.addConstraint(Sketcher.Constraint("Tangent", 42, 2, 43, 2))
sketch3.addConstraint(Sketcher.Constraint("Tangent", 43, 1, 40, 1))
sketch3.addConstraint(Sketcher.Constraint("Tangent", 44, 2, 45, 2))
sketch3.addConstraint(Sketcher.Constraint("Tangent", 45, 1, 46, 1))
sketch3.addConstraint(Sketcher.Constraint("Tangent", 46, 2, 47, 2))
sketch3.addConstraint(Sketcher.Constraint("Tangent", 47, 1, 44, 1))
sketch3.addConstraint(Sketcher.Constraint("Tangent", 48, 2, 49, 2))
sketch3.addConstraint(Sketcher.Constraint("Tangent", 49, 1, 50, 1))
sketch3.addConstraint(Sketcher.Constraint("Tangent", 50, 2, 51, 2))
sketch3.addConstraint(Sketcher.Constraint("Tangent", 51, 1, 48, 1))
sketch3.addConstraint(Sketcher.Constraint("Tangent", 52, 2, 53, 2))
sketch3.addConstraint(Sketcher.Constraint("Tangent", 53, 1, 54, 1))
sketch3.addConstraint(Sketcher.Constraint("Tangent", 54, 2, 55, 2))
sketch3.addConstraint(Sketcher.Constraint("Tangent", 55, 1, 52, 1))
sketch3.addConstraint(Sketcher.Constraint("Horizontal", 0))
sketch3.addConstraint(Sketcher.Constraint("Horizontal", 2))
sketch3.addConstraint(Sketcher.Constraint("Horizontal", 4))
sketch3.addConstraint(Sketcher.Constraint("Horizontal", 6))
sketch3.addConstraint(Sketcher.Constraint("Horizontal", 8))
sketch3.addConstraint(Sketcher.Constraint("Horizontal", 10))
sketch3.addConstraint(Sketcher.Constraint("Horizontal", 12))
sketch3.addConstraint(Sketcher.Constraint("Horizontal", 14))
sketch3.addConstraint(Sketcher.Constraint("Horizontal", 16))
sketch3.addConstraint(Sketcher.Constraint("Horizontal", 18))
sketch3.addConstraint(Sketcher.Constraint("Horizontal", 20))
sketch3.addConstraint(Sketcher.Constraint("Horizontal", 22))
sketch3.addConstraint(Sketcher.Constraint("Horizontal", 24))
sketch3.addConstraint(Sketcher.Constraint("Horizontal", 26))
sketch3.addConstraint(Sketcher.Constraint("Horizontal", 28))
sketch3.addConstraint(Sketcher.Constraint("Horizontal", 30))
sketch3.addConstraint(Sketcher.Constraint("Horizontal", 32))
sketch3.addConstraint(Sketcher.Constraint("Horizontal", 34))
sketch3.addConstraint(Sketcher.Constraint("Horizontal", 36))
sketch3.addConstraint(Sketcher.Constraint("Horizontal", 38))
sketch3.addConstraint(Sketcher.Constraint("Horizontal", 40))
sketch3.addConstraint(Sketcher.Constraint("Horizontal", 42))
sketch3.addConstraint(Sketcher.Constraint("Horizontal", 44))
sketch3.addConstraint(Sketcher.Constraint("Horizontal", 46))
sketch3.addConstraint(Sketcher.Constraint("Horizontal", 48))
sketch3.addConstraint(Sketcher.Constraint("Horizontal", 50))
sketch3.addConstraint(Sketcher.Constraint("Horizontal", 52))
sketch3.addConstraint(Sketcher.Constraint("Horizontal", 54))
sketch3.addConstraint(Sketcher.Constraint("Equal", 3, 5))
sketch3.addConstraint(Sketcher.Constraint("Equal", 7, 9))
sketch3.addConstraint(Sketcher.Constraint("Equal", 11, 13))
sketch3.addConstraint(Sketcher.Constraint("Equal", 15, 17))
sketch3.addConstraint(Sketcher.Constraint("Equal", 19, 21))
sketch3.addConstraint(Sketcher.Constraint("Equal", 23, 25))
sketch3.addConstraint(Sketcher.Constraint("Equal", 27, 29))
sketch3.addConstraint(Sketcher.Constraint("Equal", 31, 33))
sketch3.addConstraint(Sketcher.Constraint("Equal", 35, 37))
sketch3.addConstraint(Sketcher.Constraint("Equal", 39, 41))
sketch3.addConstraint(Sketcher.Constraint("Equal", 43, 45))
sketch3.addConstraint(Sketcher.Constraint("Equal", 47, 49))
sketch3.addConstraint(Sketcher.Constraint("Equal", 51, 53))
sketch3.addConstraint(Sketcher.Constraint("Horizontal", 3, 3, 5, 3))
sketch3.addConstraint(Sketcher.Constraint("Horizontal", 7, 3, 9, 3))
sketch3.addConstraint(Sketcher.Constraint("Horizontal", 11, 3, 13, 3))
sketch3.addConstraint(Sketcher.Constraint("Horizontal", 15, 3, 17, 3))
sketch3.addConstraint(Sketcher.Constraint("Horizontal", 19, 3, 21, 3))
sketch3.addConstraint(Sketcher.Constraint("Horizontal", 23, 3, 25, 3))
sketch3.addConstraint(Sketcher.Constraint("Horizontal", 27, 3, 29, 3))
sketch3.addConstraint(Sketcher.Constraint("Horizontal", 31, 3, 33, 3))
sketch3.addConstraint(Sketcher.Constraint("Horizontal", 35, 3, 37, 3))
sketch3.addConstraint(Sketcher.Constraint("Horizontal", 39, 3, 41, 3))
sketch3.addConstraint(Sketcher.Constraint("Horizontal", 43, 3, 45, 3))
sketch3.addConstraint(Sketcher.Constraint("Horizontal", 47, 3, 49, 3))
sketch3.addConstraint(Sketcher.Constraint("Horizontal", 51, 3, 53, 3))
sketch3.addConstraint(Sketcher.Constraint("Equal", 2, 4))
sketch3.addConstraint(Sketcher.Constraint("Equal", 6, 8))
sketch3.addConstraint(Sketcher.Constraint("Equal", 10, 12))
sketch3.addConstraint(Sketcher.Constraint("Equal", 14, 16))
sketch3.addConstraint(Sketcher.Constraint("Equal", 18, 20))
sketch3.addConstraint(Sketcher.Constraint("Equal", 22, 24))
sketch3.addConstraint(Sketcher.Constraint("Equal", 26, 28))
sketch3.addConstraint(Sketcher.Constraint("Equal", 30, 32))
sketch3.addConstraint(Sketcher.Constraint("Equal", 34, 36))
sketch3.addConstraint(Sketcher.Constraint("Equal", 38, 40))
sketch3.addConstraint(Sketcher.Constraint("Equal", 42, 44))
sketch3.addConstraint(Sketcher.Constraint("Equal", 46, 48))
sketch3.addConstraint(Sketcher.Constraint("Equal", 50, 52))
sketch3.addConstraint(Sketcher.Constraint("Radius", 1, 9.0))
sketch3.addConstraint(Sketcher.Constraint("DistanceX", 0, 2, 0, 1, 35.0))
sketch3.addConstraint(Sketcher.Constraint("DistanceX", -1, 1, 1, 3, 24.5))
sketch3.addConstraint(Sketcher.Constraint("DistanceY", -1, 1, 1, 3, 23.5))
sketch3.addConstraint(Sketcher.Constraint("DistanceX", -1, 1, 5, 3, 94.5))
sketch3.addConstraint(Sketcher.Constraint("DistanceX", -1, 1, 9, 3, 164.5))
sketch3.addConstraint(Sketcher.Constraint("DistanceX", -1, 1, 13, 3, 234.5))
sketch3.addConstraint(Sketcher.Constraint("DistanceX", -1, 1, 17, 3, 304.5))
sketch3.addConstraint(Sketcher.Constraint("DistanceX", -1, 1, 21, 3, 374.5))
sketch3.addConstraint(Sketcher.Constraint("DistanceX", -1, 1, 25, 3, 444.5))
sketch3.addConstraint(Sketcher.Constraint("DistanceX", -1, 1, 29, 3, 514.5))
sketch3.addConstraint(Sketcher.Constraint("DistanceX", -1, 1, 33, 3, 584.5))
sketch3.addConstraint(Sketcher.Constraint("DistanceX", -1, 1, 37, 3, 654.5))
sketch3.addConstraint(Sketcher.Constraint("DistanceX", -1, 1, 41, 3, 724.5))
sketch3.addConstraint(Sketcher.Constraint("DistanceX", -1, 1, 45, 3, 794.5))
sketch3.addConstraint(Sketcher.Constraint("DistanceX", -1, 1, 49, 3, 864.5))
sketch3.addConstraint(Sketcher.Constraint("DistanceX", -1, 1, 53, 3, 934.5))
pocket2 = body.newObject("PartDesign::Pocket", "Pocket001")
pocket2.Profile = sketch3
pocket2.Type = "ThroughAll"
pocket2.Reversed = True

doc.recompute()
